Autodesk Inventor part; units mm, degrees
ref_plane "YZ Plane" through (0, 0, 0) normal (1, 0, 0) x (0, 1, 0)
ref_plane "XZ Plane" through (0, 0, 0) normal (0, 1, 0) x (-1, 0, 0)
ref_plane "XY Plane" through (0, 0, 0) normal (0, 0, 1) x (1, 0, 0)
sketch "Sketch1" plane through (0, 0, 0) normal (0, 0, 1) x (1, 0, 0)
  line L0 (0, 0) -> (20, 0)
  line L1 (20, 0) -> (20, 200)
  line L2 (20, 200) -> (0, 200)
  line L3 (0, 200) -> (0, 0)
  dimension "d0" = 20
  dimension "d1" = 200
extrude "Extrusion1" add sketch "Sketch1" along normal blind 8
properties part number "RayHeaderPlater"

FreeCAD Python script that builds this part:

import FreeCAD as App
import Part
import Sketcher
from FreeCAD import Vector


def add_polygon(sketch, points):
    """Adds a closed chain of lines whose ends are joined by coincident constraints."""
    first, n = sketch.GeometryCount, len(points)
    for a, b in zip(points, points[1:] + points[:1]):
        sketch.addGeometry(Part.LineSegment(App.Vector(*a, 0), App.Vector(*b, 0)), False)
    for i in range(n):
        sketch.addConstraint(Sketcher.Constraint("Coincident", first + i, 2, first + (i + 1) % n, 1))

doc = App.newDocument("Part")
body = doc.addObject("PartDesign::Body", "Body")

sketch1 = body.newObject("Sketcher::SketchObject", "Sketch")
sketch1.AttachmentSupport = (doc.getObject("XY_Plane"), [""])
sketch1.MapMode = "FlatFace"
add_polygon(sketch1, [(0, 200), (0, 0), (20, 0), (20, 200)])
sketch1.addConstraint([
    Sketcher.Constraint("Vertical", 0),
    Sketcher.Constraint("Horizontal", 1),
    Sketcher.Constraint("Vertical", 2),
    Sketcher.Constraint("Horizontal", 3),
    Sketcher.Constraint("Coincident", 0, 2, -1, 1),
    Sketcher.Constraint("DistanceX", 1, 1, 1, 2, 20.0),
    Sketcher.Constraint("DistanceY", 0, 2, 0, 1, 200.0),
])
pad1 = body.newObject("PartDesign::Pad", "Pad")
pad1.Profile = sketch1
pad1.Length = 8

doc.recompute()
